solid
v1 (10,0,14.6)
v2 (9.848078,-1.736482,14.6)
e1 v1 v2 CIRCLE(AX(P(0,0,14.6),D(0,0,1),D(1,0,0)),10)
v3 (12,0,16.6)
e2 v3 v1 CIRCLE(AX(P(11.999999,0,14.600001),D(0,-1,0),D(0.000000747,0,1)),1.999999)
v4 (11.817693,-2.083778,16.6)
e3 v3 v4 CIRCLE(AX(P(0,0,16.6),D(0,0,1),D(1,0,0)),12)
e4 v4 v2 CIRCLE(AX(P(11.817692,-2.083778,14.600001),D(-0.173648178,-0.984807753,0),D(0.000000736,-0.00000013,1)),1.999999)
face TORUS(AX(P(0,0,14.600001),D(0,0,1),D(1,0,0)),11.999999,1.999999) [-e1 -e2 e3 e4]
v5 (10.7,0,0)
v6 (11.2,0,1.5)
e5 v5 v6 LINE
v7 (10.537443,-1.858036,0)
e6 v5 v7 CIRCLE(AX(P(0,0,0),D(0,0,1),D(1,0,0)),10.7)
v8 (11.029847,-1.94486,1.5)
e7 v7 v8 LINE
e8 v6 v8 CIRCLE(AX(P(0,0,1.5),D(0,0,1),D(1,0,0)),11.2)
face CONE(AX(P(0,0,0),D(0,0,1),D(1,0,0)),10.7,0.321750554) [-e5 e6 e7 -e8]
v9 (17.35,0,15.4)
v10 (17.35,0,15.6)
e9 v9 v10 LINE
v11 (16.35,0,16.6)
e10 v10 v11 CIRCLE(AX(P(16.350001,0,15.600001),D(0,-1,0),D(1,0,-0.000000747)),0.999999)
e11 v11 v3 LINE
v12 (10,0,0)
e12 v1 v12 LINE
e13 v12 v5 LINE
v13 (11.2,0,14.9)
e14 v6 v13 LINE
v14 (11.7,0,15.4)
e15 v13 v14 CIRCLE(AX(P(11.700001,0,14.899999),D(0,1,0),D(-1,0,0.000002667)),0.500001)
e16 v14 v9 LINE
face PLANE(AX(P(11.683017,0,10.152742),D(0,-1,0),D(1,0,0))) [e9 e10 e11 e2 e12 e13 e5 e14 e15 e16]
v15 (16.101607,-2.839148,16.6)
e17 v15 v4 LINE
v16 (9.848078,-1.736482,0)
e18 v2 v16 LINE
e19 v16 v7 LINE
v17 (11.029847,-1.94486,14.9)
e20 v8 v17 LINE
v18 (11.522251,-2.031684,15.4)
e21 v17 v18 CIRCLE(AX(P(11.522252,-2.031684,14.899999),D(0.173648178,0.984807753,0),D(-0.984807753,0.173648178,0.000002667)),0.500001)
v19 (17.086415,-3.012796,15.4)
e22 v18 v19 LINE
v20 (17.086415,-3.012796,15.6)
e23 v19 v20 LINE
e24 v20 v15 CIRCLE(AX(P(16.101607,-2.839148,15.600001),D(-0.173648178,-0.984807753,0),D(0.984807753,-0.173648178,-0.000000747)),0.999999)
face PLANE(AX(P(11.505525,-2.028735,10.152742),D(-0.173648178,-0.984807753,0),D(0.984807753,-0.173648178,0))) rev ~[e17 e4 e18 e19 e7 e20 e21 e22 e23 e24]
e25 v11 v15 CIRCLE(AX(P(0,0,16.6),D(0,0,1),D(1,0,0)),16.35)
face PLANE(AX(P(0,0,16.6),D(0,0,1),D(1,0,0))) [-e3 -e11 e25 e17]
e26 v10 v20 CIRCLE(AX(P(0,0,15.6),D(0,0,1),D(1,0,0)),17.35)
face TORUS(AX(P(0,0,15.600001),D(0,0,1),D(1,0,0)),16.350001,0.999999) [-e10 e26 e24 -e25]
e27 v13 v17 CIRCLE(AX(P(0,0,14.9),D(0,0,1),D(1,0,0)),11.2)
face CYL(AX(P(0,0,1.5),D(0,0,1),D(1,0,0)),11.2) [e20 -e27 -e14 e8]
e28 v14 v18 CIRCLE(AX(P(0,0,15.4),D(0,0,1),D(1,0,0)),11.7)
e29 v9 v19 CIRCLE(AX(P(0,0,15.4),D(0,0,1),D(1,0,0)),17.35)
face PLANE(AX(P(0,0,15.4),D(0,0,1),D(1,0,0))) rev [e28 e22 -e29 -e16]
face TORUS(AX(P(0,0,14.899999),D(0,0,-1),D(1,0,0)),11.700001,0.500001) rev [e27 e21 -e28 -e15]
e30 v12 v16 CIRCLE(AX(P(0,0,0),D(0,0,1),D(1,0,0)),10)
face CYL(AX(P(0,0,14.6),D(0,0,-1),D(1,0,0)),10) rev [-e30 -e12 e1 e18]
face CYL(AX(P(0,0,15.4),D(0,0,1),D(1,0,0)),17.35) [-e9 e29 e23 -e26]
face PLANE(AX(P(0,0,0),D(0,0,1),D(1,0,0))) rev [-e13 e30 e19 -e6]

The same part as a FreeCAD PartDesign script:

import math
import FreeCAD as App
import Part
import Sketcher

V = App.Vector
Q = App.Units.Quantity

doc = App.newDocument("Part")
body = doc.addObject("PartDesign::Body", "Body")

sketch1 = body.newObject("Sketcher::SketchObject", "Sketch")
sketch1.AttachmentSupport = (doc.getObject("XZ_Plane"), [""])
sketch1.MapMode = "FlatFace"
sketch1.addGeometry([
    Part.LineSegment(V(10, 14.6, 0), V(10, 0, 0)),
    Part.LineSegment(V(10, 0, 0), V(10.7, 0, 0)),
    Part.LineSegment(V(10.7, 0, 0), V(11.2, 1.5, 0)),
    Part.LineSegment(V(11.2, 1.5, 0), V(11.2, 14.9, 0)),
    Part.ArcOfCircle(Part.Circle(V(11.7, 14.9, 0), V(0, 0, 1), 0.5), math.radians(90), math.radians(180)),
    Part.LineSegment(V(11.7, 15.4, 0), V(17.35, 15.4, 0)),
    Part.LineSegment(V(17.35, 15.4, 0), V(17.35, 15.6, 0)),
    Part.ArcOfCircle(Part.Circle(V(16.35, 15.6, 0), V(0, 0, 1), 1), math.radians(0), math.radians(90)),
    Part.LineSegment(V(16.35, 16.6, 0), V(12, 16.6, 0)),
    Part.ArcOfCircle(Part.Circle(V(12, 14.6, 0), V(0, 0, 1), 2), math.radians(90), math.radians(180)),
], False)
sketch1.addConstraint([
    Sketcher.Constraint("Coincident", 0, 2, 1, 1),
    Sketcher.Constraint("Coincident", 1, 2, 2, 1),
    Sketcher.Constraint("Coincident", 2, 2, 3, 1),
    Sketcher.Constraint("Coincident", 3, 2, 4, 2),
    Sketcher.Constraint("Coincident", 4, 1, 5, 1),
    Sketcher.Constraint("Coincident", 5, 2, 6, 1),
    Sketcher.Constraint("Tangent", 6, 2, 7, 1),
    Sketcher.Constraint("Tangent", 7, 2, 8, 1),
    Sketcher.Constraint("Tangent", 8, 2, 9, 1),
    Sketcher.Constraint("Tangent", 9, 2, 0, 1),
    Sketcher.Constraint("Vertical", 0),
    Sketcher.Constraint("Horizontal", 1),
    Sketcher.Constraint("Vertical", 3),
    Sketcher.Constraint("Horizontal", 5),
    Sketcher.Constraint("Vertical", 6),
    Sketcher.Constraint("Horizontal", 8),
    Sketcher.Constraint("PointOnObject", 0, 2, -1),
    Sketcher.Constraint("Horizontal", 4, 3, 3, 2),
    Sketcher.Constraint("Radius", 7, Q("0.999999 mm")),
    Sketcher.Constraint("Radius", 9, Q("1.999999 mm")),
    Sketcher.Constraint("Radius", 4, Q("0.500001 mm")),
    Sketcher.Constraint("DistanceX", 1, 1, 1, 2, Q("0.7 mm")),
    Sketcher.Constraint("DistanceY", 0, 2, 0, 1, Q("14.6 mm")),
    Sketcher.Constraint("DistanceY", 3, 1, 3, 2, Q("13.4 mm")),
    Sketcher.Constraint("DistanceY", 6, 1, 6, 2, Q("0.2 mm")),
    Sketcher.Constraint("DistanceX", -1, 1, 9, 3, Q("11.999999 mm")),
    Sketcher.Constraint("DistanceX", 1, 2, 4, 3, Q("1.000001 mm")),
    Sketcher.Constraint("DistanceX", 5, 1, 5, 2, Q("5.65 mm")),
    Sketcher.Constraint("DistanceX", 8, 2, 8, 1, Q("4.35 mm")),
])
revolution = body.newObject("PartDesign::Revolution", "Revolution")
revolution.Profile = sketch1
revolution.ReferenceAxis = (sketch1, ["V_Axis"])
revolution.Angle = 350

doc.recompute()
